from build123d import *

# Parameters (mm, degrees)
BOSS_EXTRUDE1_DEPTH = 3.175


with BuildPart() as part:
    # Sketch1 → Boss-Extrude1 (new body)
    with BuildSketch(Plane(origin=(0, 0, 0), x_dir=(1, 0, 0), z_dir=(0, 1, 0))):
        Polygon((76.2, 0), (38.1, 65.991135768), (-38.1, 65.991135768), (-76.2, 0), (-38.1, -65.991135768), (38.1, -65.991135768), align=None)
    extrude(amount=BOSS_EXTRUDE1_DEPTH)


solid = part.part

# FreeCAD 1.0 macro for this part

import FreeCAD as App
import Part
import Sketcher

V = App.Vector
Q = App.Units.Quantity

doc = App.newDocument("Part")
params = doc.addObject("Spreadsheet::Sheet", "Params")
for row, (alias, value) in enumerate([
    ("sketch1_width", "3 in"),
    ("sketch1_length", "3 in"),
    ("pad1_length", "0.125 in"),
], start=1):
    params.set(f"A{row}", alias)
    params.set(f"B{row}", "=" + value)
    params.setAlias(f"B{row}", alias)

body = doc.addObject("PartDesign::Body", "Body")

sketch1 = body.newObject("Sketcher::SketchObject", "Sketch")
sketch1.AttachmentSupport = (doc.getObject("XZ_Plane"), [""])
sketch1.MapMode = "FlatFace"
sketch1.addGeometry([
    Part.LineSegment(V(76, 0, 0), V(38, -66, 0)),
    Part.LineSegment(V(38, -66, 0), V(-38, -66, 0)),
    Part.LineSegment(V(-38, -66, 0), V(-76, 0, 0)),
    Part.LineSegment(V(-76, 0, 0), V(-38, 66, 0)),
    Part.LineSegment(V(-38, 66, 0), V(38, 66, 0)),
    Part.LineSegment(V(38, 66, 0), V(76, 0, 0)),
], False)
sketch1.addConstraint([
    Sketcher.Constraint("Coincident", 0, 2, 1, 1),
    Sketcher.Constraint("Coincident", 1, 2, 2, 1),
    Sketcher.Constraint("Coincident", 2, 2, 3, 1),
    Sketcher.Constraint("Coincident", 3, 2, 4, 1),
    Sketcher.Constraint("Coincident", 4, 2, 5, 1),
    Sketcher.Constraint("Coincident", 5, 2, 0, 1),
    Sketcher.Constraint("Horizontal", 1),
    Sketcher.Constraint("Horizontal", 4),
    Sketcher.Constraint("Symmetric", 0, 2, 3, 2, -1, 1),
    Sketcher.Constraint("Symmetric", 2, 2, 5, 2, -1, 1),
    Sketcher.Constraint("PointOnObject", 2, 2, -1),
    Sketcher.Constraint("Parallel", 2, 5),
    Sketcher.Constraint("Vertical", 1, 2, 3, 2),
    Sketcher.Constraint("DistanceX", 1, 2, 1, 1, Q("3 in")),
    Sketcher.Constraint("Distance", 0, Q("3 in")),
    Sketcher.Constraint("DistanceX", 2, 2, -1, 1, Q("3 in")),
])
sketch1.setExpression("Constraints[13]", "Params.sketch1_width")
sketch1.setExpression("Constraints[14]", "Params.sketch1_length")
pad1 = body.newObject("PartDesign::Pad", "Pad")
pad1.Profile = sketch1
pad1.setExpression("Length", "Params.pad1_length")
pad1.Reversed = True

doc.recompute()
